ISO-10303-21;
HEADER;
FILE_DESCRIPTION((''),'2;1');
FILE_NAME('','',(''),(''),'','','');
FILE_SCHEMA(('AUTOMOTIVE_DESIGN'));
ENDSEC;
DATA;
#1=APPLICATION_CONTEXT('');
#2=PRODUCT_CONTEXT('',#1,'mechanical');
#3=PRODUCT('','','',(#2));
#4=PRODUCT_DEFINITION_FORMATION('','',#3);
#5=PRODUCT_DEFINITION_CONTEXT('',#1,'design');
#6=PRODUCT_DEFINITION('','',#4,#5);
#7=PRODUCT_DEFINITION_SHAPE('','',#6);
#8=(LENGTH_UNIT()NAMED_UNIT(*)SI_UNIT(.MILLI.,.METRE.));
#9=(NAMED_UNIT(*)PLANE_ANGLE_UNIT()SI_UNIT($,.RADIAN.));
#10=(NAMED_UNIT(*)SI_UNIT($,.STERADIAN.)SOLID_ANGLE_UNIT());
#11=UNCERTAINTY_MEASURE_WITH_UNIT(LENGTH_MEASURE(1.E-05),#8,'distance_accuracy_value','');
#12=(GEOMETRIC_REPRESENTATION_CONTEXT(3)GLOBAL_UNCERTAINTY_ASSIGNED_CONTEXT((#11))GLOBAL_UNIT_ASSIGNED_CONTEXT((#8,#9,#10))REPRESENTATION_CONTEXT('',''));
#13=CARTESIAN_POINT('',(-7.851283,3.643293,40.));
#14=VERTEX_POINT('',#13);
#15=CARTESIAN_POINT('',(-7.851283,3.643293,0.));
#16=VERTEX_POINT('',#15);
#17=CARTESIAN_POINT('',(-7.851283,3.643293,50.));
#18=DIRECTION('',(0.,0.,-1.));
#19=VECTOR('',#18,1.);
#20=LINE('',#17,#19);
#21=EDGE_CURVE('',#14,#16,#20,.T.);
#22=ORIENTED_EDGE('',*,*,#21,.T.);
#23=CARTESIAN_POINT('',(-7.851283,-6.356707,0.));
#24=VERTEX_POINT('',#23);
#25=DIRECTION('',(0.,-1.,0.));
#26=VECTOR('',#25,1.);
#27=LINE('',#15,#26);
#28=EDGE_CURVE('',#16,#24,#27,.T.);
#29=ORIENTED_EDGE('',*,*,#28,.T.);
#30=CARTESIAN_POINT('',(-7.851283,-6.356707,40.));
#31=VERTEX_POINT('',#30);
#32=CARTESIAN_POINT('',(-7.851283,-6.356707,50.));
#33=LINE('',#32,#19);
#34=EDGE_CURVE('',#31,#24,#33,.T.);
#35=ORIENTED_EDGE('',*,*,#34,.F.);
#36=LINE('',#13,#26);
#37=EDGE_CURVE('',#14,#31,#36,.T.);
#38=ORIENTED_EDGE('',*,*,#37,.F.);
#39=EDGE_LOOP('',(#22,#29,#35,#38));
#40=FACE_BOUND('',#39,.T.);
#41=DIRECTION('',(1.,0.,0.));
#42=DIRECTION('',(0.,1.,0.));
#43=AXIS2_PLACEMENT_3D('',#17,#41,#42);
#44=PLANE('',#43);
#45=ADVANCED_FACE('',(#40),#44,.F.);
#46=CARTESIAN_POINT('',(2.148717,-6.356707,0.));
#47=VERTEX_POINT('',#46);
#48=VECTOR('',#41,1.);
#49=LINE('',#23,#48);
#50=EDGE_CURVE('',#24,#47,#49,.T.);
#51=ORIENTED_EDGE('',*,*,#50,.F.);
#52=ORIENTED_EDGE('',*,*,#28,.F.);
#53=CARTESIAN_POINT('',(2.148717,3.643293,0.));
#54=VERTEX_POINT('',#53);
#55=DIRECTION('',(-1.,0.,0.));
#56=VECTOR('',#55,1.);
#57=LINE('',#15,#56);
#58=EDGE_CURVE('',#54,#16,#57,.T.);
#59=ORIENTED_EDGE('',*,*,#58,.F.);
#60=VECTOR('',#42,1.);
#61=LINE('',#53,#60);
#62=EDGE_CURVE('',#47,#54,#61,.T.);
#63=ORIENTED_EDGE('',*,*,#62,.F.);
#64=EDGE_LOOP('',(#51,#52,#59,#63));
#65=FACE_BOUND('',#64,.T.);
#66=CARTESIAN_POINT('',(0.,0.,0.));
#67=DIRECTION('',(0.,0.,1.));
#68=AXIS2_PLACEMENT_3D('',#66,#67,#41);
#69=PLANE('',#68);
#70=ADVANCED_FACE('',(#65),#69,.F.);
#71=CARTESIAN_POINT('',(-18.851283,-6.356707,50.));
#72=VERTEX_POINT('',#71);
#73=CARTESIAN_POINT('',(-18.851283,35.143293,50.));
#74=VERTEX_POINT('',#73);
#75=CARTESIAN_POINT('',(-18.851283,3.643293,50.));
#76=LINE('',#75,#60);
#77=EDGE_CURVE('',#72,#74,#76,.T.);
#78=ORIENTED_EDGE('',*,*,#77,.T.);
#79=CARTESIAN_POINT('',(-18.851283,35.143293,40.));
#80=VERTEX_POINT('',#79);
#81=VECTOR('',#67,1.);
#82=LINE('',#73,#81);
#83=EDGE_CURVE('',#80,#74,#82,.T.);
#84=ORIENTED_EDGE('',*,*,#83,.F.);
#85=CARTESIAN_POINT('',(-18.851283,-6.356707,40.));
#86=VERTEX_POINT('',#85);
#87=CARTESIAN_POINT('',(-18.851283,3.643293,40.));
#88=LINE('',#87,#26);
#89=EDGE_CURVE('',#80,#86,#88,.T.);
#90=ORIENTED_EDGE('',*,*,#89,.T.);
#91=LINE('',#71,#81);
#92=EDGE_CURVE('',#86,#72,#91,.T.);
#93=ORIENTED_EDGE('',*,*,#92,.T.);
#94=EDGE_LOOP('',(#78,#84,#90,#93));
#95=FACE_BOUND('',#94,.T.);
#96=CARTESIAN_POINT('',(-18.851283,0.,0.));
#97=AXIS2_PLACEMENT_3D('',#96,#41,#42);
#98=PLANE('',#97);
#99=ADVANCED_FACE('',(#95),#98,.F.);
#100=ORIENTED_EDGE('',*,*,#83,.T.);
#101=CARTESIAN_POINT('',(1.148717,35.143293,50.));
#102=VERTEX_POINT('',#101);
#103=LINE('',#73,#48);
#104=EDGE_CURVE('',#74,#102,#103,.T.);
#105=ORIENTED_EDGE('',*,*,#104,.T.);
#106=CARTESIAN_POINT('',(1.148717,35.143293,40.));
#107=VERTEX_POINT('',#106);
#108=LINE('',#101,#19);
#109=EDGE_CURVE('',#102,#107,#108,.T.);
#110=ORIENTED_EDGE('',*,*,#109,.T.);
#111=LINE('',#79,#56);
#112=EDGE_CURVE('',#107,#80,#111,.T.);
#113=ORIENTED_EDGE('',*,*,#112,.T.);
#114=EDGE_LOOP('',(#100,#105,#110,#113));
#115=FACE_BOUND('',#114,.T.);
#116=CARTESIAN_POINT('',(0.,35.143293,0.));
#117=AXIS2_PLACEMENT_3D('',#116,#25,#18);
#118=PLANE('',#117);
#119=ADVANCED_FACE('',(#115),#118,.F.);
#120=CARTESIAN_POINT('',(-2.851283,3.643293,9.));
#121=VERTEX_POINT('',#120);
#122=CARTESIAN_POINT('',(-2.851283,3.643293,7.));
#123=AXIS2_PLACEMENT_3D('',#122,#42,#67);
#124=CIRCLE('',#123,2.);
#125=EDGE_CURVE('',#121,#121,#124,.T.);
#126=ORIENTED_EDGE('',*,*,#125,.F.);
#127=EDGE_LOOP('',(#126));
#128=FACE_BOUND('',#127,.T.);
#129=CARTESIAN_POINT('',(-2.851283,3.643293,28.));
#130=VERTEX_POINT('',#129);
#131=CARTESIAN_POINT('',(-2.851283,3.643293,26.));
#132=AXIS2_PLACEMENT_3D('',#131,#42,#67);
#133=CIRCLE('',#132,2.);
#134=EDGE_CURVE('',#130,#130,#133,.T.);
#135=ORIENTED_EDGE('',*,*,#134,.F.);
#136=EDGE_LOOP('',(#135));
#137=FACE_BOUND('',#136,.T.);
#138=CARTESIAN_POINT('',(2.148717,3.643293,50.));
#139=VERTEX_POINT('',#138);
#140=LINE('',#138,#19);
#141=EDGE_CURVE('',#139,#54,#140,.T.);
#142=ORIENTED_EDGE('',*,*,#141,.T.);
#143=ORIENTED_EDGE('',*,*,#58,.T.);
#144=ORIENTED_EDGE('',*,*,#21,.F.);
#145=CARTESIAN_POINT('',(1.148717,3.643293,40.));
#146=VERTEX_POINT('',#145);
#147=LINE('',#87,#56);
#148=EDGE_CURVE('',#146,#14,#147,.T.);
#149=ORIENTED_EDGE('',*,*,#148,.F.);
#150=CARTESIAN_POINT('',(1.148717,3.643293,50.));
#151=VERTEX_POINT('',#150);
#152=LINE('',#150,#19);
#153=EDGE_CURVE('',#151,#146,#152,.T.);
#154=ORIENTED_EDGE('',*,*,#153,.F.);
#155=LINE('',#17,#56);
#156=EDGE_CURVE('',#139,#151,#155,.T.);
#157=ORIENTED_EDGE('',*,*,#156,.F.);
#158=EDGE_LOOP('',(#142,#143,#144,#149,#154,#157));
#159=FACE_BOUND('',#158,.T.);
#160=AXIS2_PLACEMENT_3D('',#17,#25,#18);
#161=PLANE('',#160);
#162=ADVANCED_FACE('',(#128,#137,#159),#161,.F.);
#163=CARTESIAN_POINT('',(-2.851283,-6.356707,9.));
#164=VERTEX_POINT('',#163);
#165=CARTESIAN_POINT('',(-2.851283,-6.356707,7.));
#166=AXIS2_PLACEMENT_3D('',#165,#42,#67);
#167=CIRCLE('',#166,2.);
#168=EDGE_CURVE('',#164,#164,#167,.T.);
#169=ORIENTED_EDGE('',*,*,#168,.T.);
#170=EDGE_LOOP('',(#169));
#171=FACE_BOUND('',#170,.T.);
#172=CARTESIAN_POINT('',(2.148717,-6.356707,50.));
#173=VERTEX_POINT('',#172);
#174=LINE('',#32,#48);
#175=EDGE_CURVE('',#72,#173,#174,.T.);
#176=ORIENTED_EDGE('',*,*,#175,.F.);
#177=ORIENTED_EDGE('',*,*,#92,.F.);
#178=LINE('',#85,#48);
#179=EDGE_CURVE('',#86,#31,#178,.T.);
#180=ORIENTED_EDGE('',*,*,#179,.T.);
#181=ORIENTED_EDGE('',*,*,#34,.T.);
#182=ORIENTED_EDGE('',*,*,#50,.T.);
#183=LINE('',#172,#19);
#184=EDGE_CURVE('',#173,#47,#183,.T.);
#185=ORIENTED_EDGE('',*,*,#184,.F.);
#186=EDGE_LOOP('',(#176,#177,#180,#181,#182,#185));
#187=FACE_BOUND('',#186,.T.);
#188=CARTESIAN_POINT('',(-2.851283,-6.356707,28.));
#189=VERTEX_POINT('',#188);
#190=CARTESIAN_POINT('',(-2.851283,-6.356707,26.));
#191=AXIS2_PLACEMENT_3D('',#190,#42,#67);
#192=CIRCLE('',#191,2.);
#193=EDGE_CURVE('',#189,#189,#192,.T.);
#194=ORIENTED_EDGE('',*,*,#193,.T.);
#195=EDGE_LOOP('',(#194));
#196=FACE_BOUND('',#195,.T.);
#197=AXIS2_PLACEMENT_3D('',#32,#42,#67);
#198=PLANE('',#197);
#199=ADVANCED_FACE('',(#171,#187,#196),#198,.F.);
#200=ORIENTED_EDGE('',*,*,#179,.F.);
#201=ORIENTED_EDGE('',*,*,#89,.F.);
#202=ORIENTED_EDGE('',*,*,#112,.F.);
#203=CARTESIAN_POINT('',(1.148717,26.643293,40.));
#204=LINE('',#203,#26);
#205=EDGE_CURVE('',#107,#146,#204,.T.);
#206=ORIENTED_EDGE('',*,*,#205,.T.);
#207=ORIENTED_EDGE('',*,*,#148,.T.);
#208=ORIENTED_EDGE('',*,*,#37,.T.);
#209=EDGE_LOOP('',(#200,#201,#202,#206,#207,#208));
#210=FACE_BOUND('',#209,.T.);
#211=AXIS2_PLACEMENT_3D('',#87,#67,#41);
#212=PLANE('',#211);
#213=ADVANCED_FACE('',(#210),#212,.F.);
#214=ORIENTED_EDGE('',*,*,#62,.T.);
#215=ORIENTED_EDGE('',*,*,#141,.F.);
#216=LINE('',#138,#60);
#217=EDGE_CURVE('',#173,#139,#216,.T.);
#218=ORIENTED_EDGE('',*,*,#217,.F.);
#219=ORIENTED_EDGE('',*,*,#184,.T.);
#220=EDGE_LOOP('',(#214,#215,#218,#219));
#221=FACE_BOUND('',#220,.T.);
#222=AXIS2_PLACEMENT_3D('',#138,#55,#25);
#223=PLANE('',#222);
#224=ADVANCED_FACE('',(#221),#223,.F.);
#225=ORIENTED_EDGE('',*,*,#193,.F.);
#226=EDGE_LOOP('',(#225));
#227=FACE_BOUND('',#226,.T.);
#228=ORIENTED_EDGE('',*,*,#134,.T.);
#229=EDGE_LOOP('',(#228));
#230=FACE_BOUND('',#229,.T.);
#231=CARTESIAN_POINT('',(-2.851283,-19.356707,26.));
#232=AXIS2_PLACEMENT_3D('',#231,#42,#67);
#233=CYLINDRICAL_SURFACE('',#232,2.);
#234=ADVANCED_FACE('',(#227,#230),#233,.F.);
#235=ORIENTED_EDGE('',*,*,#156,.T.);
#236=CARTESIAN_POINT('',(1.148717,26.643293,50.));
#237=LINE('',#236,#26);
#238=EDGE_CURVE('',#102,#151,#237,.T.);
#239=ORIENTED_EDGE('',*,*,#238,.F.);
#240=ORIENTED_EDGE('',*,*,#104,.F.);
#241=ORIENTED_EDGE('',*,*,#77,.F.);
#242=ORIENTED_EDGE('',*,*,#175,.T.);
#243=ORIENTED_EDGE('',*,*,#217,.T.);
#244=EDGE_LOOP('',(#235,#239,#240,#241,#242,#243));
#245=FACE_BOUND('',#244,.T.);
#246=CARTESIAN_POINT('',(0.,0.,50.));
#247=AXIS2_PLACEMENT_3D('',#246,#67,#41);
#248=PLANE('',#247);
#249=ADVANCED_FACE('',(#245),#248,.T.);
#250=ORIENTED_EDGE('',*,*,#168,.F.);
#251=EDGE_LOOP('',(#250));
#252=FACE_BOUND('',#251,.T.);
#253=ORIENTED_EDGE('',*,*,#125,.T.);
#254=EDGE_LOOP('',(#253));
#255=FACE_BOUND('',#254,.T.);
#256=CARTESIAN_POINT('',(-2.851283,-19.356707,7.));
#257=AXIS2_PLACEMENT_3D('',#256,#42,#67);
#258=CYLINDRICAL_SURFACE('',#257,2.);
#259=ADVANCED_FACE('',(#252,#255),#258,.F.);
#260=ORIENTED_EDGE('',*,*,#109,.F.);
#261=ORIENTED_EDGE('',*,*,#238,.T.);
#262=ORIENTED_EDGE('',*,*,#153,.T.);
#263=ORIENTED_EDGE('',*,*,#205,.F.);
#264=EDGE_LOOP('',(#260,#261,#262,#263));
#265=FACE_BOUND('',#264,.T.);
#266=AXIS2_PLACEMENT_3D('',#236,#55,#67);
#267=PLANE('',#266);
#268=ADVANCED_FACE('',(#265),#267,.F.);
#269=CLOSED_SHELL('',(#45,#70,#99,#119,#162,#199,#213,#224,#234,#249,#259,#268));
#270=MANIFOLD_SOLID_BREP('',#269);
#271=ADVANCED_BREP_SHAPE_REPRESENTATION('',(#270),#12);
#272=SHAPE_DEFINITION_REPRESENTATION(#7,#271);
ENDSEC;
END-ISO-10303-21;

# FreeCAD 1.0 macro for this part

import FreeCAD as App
import Part
import Sketcher


def add_polygon(sketch, points):
    """Adds a closed chain of lines whose ends are joined by coincident constraints."""
    first, n = sketch.GeometryCount, len(points)
    for a, b in zip(points, points[1:] + points[:1]):
        sketch.addGeometry(Part.LineSegment(App.Vector(*a, 0), App.Vector(*b, 0)), False)
    for i in range(n):
        sketch.addConstraint(Sketcher.Constraint("Coincident", first + i, 2, first + (i + 1) % n, 1))

doc = App.newDocument("Part")
body = doc.addObject("PartDesign::Body", "Body")

# Sketch on XY plane
sketch1 = body.newObject("Sketcher::SketchObject", "Sketch")
sketch1.AttachmentSupport = (doc.getObject("XY_Plane"), [""])
sketch1.MapMode = "FlatFace"
add_polygon(sketch1, [(-7.851283, 3.643293), (-7.851283, -6.356707), (2.148717, -6.356707), (2.148717, 3.643293)])  # lines 0-3
sketch1.addConstraint(Sketcher.Constraint("Vertical", 0))
sketch1.addConstraint(Sketcher.Constraint("Horizontal", 1))
sketch1.addConstraint(Sketcher.Constraint("Vertical", 2))
sketch1.addConstraint(Sketcher.Constraint("Horizontal", 3))
sketch1.addConstraint(Sketcher.Constraint("Equal", 3, 0))
sketch1.addConstraint(Sketcher.Constraint("DistanceX", 1, 1, 1, 2, 10.0))
sketch1.addConstraint(Sketcher.Constraint("DistanceX", 0, 2, -1, 1, 7.851283))
sketch1.addConstraint(Sketcher.Constraint("DistanceY", 0, 2, -1, 1, 6.356707))
pad1 = body.newObject("PartDesign::Pad", "Pad")
pad1.Profile = sketch1
pad1.Length = 50

# Sketch on YZ plane
sketch2 = body.newObject("Sketcher::SketchObject", "Sketch001")
sketch2.AttachmentSupport = (doc.getObject("YZ_Plane"), [""])
sketch2.MapMode = "FlatFace"
sketch2.AttachmentOffset = App.Placement(App.Vector(0, 0, -7.851283), App.Rotation())
add_polygon(sketch2, [(3.643293, 40), (-6.356707, 40), (-6.356707, 50), (3.643293, 50)])  # lines 0-3
sketch2.addConstraint(Sketcher.Constraint("Horizontal", 0))
sketch2.addConstraint(Sketcher.Constraint("Vertical", 1))
sketch2.addConstraint(Sketcher.Constraint("Horizontal", 2))
sketch2.addConstraint(Sketcher.Constraint("Vertical", 3))
sketch2.addConstraint(Sketcher.Constraint("Equal", 2, 1))
sketch2.addConstraint(Sketcher.Constraint("DistanceX", 0, 2, 0, 1, 10.0))
sketch2.addConstraint(Sketcher.Constraint("DistanceY", -1, 1, 0, 2, 40.0))
sketch2.addConstraint(Sketcher.Constraint("DistanceX", 0, 2, -1, 1, 6.356707))
pad2 = body.newObject("PartDesign::Pad", "Pad001")
pad2.Profile = sketch2
pad2.Length = 11
pad2.Reversed = True

# Sketch on XZ plane
sketch3 = body.newObject("Sketcher::SketchObject", "Sketch002")
sketch3.AttachmentSupport = (doc.getObject("XZ_Plane"), [""])
sketch3.MapMode = "FlatFace"
sketch3.AttachmentOffset = App.Placement(App.Vector(0, 0, -3.643293), App.Rotation())
add_polygon(sketch3, [(-18.851283, 40), (-18.851283, 50), (1.148717, 50), (1.148717, 40)])  # lines 0-3
sketch3.addConstraint(Sketcher.Constraint("Vertical", 0))
sketch3.addConstraint(Sketcher.Constraint("Horizontal", 1))
sketch3.addConstraint(Sketcher.Constraint("Vertical", 2))
sketch3.addConstraint(Sketcher.Constraint("Horizontal", 3))
sketch3.addConstraint(Sketcher.Constraint("DistanceX", 1, 1, 1, 2, 20.0))
sketch3.addConstraint(Sketcher.Constraint("DistanceY", 0, 1, 0, 2, 10.0))
sketch3.addConstraint(Sketcher.Constraint("DistanceY", -1, 1, 0, 2, 50.0))
sketch3.addConstraint(Sketcher.Constraint("DistanceX", 0, 2, -1, 1, 18.851283))
pad3 = body.newObject("PartDesign::Pad", "Pad002")
pad3.Profile = sketch3
pad3.Length = 23
pad3.Reversed = True

# Sketch on XZ plane
sketch4 = body.newObject("Sketcher::SketchObject", "Sketch003")
sketch4.AttachmentSupport = (doc.getObject("XZ_Plane"), [""])
sketch4.MapMode = "FlatFace"
sketch4.AttachmentOffset = App.Placement(App.Vector(0, 0, -3.643293), App.Rotation())
sketch4.addGeometry(Part.Circle(App.Vector(-2.851283, 7, 0), App.Vector(0, 0, 1), 2), False)
sketch4.addConstraint(Sketcher.Constraint("Diameter", 0, 4.0))
sketch4.addConstraint(Sketcher.Constraint("DistanceY", -1, 1, 0, 3, 7.0))
sketch4.addConstraint(Sketcher.Constraint("DistanceX", 0, 3, -1, 1, 2.851283))
pocket1 = body.newObject("PartDesign::Pocket", "Pocket")
pocket1.Profile = sketch4
pocket1.Length = 23
pocket1.Reversed = True

# Sketch on XZ plane
sketch5 = body.newObject("Sketcher::SketchObject", "Sketch004")
sketch5.AttachmentSupport = (doc.getObject("XZ_Plane"), [""])
sketch5.MapMode = "FlatFace"
sketch5.AttachmentOffset = App.Placement(App.Vector(0, 0, -3.643293), App.Rotation())
sketch5.addGeometry(Part.Circle(App.Vector(-2.851283, 26, 0), App.Vector(0, 0, 1), 2), False)
sketch5.addConstraint(Sketcher.Constraint("Diameter", 0, 4.0))
sketch5.addConstraint(Sketcher.Constraint("DistanceY", -1, 1, 0, 3, 26.0))
sketch5.addConstraint(Sketcher.Constraint("DistanceX", 0, 3, -1, 1, 2.851283))
pocket2 = body.newObject("PartDesign::Pocket", "Pocket001")
pocket2.Profile = sketch5
pocket2.Length = 23
pocket2.Reversed = True

# Sketch on XZ plane
sketch6 = body.newObject("Sketcher::SketchObject", "Sketch005")
sketch6.AttachmentSupport = (doc.getObject("XZ_Plane"), [""])
sketch6.MapMode = "FlatFace"
sketch6.AttachmentOffset = App.Placement(App.Vector(0, 0, -3.643293), App.Rotation())
add_polygon(sketch6, [(-18.851283, 40), (-18.851283, 50), (1.148717, 50), (1.148717, 40)])  # lines 0-3
sketch6.addConstraint(Sketcher.Constraint("Vertical", 0))
sketch6.addConstraint(Sketcher.Constraint("Horizontal", 1))
sketch6.addConstraint(Sketcher.Constraint("Vertical", 2))
sketch6.addConstraint(Sketcher.Constraint("Horizontal", 3))
sketch6.addConstraint(Sketcher.Constraint("DistanceX", 1, 1, 1, 2, 20.0))
sketch6.addConstraint(Sketcher.Constraint("DistanceY", 0, 1, 0, 2, 10.0))
sketch6.addConstraint(Sketcher.Constraint("DistanceY", -1, 1, 0, 2, 50.0))
sketch6.addConstraint(Sketcher.Constraint("DistanceX", 0, 2, -1, 1, 18.851283))
pad4 = body.newObject("PartDesign::Pad", "Pad003")
pad4.Profile = sketch6
pad4.Length = 31
pad4.Reversed = True

# Sketch on XZ plane
sketch7 = body.newObject("Sketcher::SketchObject", "Sketch006")
sketch7.AttachmentSupport = (doc.getObject("XZ_Plane"), [""])
sketch7.MapMode = "FlatFace"
sketch7.AttachmentOffset = App.Placement(App.Vector(0, 0, -3.643293), App.Rotation())
add_polygon(sketch7, [(-18.851283, 40), (-18.851283, 50), (1.148717, 50), (1.148717, 40)])  # lines 0-3
sketch7.addConstraint(Sketcher.Constraint("Vertical", 0))
sketch7.addConstraint(Sketcher.Constraint("Horizontal", 1))
sketch7.addConstraint(Sketcher.Constraint("Vertical", 2))
sketch7.addConstraint(Sketcher.Constraint("Horizontal", 3))
sketch7.addConstraint(Sketcher.Constraint("DistanceX", 1, 1, 1, 2, 20.0))
sketch7.addConstraint(Sketcher.Constraint("DistanceY", 0, 1, 0, 2, 10.0))
sketch7.addConstraint(Sketcher.Constraint("DistanceY", -1, 1, 0, 2, 50.0))
sketch7.addConstraint(Sketcher.Constraint("DistanceX", 0, 2, -1, 1, 18.851283))
pad5 = body.newObject("PartDesign::Pad", "Pad004")
pad5.Profile = sketch7
pad5.Length = 31.5
pad5.Reversed = True

doc.recompute()
